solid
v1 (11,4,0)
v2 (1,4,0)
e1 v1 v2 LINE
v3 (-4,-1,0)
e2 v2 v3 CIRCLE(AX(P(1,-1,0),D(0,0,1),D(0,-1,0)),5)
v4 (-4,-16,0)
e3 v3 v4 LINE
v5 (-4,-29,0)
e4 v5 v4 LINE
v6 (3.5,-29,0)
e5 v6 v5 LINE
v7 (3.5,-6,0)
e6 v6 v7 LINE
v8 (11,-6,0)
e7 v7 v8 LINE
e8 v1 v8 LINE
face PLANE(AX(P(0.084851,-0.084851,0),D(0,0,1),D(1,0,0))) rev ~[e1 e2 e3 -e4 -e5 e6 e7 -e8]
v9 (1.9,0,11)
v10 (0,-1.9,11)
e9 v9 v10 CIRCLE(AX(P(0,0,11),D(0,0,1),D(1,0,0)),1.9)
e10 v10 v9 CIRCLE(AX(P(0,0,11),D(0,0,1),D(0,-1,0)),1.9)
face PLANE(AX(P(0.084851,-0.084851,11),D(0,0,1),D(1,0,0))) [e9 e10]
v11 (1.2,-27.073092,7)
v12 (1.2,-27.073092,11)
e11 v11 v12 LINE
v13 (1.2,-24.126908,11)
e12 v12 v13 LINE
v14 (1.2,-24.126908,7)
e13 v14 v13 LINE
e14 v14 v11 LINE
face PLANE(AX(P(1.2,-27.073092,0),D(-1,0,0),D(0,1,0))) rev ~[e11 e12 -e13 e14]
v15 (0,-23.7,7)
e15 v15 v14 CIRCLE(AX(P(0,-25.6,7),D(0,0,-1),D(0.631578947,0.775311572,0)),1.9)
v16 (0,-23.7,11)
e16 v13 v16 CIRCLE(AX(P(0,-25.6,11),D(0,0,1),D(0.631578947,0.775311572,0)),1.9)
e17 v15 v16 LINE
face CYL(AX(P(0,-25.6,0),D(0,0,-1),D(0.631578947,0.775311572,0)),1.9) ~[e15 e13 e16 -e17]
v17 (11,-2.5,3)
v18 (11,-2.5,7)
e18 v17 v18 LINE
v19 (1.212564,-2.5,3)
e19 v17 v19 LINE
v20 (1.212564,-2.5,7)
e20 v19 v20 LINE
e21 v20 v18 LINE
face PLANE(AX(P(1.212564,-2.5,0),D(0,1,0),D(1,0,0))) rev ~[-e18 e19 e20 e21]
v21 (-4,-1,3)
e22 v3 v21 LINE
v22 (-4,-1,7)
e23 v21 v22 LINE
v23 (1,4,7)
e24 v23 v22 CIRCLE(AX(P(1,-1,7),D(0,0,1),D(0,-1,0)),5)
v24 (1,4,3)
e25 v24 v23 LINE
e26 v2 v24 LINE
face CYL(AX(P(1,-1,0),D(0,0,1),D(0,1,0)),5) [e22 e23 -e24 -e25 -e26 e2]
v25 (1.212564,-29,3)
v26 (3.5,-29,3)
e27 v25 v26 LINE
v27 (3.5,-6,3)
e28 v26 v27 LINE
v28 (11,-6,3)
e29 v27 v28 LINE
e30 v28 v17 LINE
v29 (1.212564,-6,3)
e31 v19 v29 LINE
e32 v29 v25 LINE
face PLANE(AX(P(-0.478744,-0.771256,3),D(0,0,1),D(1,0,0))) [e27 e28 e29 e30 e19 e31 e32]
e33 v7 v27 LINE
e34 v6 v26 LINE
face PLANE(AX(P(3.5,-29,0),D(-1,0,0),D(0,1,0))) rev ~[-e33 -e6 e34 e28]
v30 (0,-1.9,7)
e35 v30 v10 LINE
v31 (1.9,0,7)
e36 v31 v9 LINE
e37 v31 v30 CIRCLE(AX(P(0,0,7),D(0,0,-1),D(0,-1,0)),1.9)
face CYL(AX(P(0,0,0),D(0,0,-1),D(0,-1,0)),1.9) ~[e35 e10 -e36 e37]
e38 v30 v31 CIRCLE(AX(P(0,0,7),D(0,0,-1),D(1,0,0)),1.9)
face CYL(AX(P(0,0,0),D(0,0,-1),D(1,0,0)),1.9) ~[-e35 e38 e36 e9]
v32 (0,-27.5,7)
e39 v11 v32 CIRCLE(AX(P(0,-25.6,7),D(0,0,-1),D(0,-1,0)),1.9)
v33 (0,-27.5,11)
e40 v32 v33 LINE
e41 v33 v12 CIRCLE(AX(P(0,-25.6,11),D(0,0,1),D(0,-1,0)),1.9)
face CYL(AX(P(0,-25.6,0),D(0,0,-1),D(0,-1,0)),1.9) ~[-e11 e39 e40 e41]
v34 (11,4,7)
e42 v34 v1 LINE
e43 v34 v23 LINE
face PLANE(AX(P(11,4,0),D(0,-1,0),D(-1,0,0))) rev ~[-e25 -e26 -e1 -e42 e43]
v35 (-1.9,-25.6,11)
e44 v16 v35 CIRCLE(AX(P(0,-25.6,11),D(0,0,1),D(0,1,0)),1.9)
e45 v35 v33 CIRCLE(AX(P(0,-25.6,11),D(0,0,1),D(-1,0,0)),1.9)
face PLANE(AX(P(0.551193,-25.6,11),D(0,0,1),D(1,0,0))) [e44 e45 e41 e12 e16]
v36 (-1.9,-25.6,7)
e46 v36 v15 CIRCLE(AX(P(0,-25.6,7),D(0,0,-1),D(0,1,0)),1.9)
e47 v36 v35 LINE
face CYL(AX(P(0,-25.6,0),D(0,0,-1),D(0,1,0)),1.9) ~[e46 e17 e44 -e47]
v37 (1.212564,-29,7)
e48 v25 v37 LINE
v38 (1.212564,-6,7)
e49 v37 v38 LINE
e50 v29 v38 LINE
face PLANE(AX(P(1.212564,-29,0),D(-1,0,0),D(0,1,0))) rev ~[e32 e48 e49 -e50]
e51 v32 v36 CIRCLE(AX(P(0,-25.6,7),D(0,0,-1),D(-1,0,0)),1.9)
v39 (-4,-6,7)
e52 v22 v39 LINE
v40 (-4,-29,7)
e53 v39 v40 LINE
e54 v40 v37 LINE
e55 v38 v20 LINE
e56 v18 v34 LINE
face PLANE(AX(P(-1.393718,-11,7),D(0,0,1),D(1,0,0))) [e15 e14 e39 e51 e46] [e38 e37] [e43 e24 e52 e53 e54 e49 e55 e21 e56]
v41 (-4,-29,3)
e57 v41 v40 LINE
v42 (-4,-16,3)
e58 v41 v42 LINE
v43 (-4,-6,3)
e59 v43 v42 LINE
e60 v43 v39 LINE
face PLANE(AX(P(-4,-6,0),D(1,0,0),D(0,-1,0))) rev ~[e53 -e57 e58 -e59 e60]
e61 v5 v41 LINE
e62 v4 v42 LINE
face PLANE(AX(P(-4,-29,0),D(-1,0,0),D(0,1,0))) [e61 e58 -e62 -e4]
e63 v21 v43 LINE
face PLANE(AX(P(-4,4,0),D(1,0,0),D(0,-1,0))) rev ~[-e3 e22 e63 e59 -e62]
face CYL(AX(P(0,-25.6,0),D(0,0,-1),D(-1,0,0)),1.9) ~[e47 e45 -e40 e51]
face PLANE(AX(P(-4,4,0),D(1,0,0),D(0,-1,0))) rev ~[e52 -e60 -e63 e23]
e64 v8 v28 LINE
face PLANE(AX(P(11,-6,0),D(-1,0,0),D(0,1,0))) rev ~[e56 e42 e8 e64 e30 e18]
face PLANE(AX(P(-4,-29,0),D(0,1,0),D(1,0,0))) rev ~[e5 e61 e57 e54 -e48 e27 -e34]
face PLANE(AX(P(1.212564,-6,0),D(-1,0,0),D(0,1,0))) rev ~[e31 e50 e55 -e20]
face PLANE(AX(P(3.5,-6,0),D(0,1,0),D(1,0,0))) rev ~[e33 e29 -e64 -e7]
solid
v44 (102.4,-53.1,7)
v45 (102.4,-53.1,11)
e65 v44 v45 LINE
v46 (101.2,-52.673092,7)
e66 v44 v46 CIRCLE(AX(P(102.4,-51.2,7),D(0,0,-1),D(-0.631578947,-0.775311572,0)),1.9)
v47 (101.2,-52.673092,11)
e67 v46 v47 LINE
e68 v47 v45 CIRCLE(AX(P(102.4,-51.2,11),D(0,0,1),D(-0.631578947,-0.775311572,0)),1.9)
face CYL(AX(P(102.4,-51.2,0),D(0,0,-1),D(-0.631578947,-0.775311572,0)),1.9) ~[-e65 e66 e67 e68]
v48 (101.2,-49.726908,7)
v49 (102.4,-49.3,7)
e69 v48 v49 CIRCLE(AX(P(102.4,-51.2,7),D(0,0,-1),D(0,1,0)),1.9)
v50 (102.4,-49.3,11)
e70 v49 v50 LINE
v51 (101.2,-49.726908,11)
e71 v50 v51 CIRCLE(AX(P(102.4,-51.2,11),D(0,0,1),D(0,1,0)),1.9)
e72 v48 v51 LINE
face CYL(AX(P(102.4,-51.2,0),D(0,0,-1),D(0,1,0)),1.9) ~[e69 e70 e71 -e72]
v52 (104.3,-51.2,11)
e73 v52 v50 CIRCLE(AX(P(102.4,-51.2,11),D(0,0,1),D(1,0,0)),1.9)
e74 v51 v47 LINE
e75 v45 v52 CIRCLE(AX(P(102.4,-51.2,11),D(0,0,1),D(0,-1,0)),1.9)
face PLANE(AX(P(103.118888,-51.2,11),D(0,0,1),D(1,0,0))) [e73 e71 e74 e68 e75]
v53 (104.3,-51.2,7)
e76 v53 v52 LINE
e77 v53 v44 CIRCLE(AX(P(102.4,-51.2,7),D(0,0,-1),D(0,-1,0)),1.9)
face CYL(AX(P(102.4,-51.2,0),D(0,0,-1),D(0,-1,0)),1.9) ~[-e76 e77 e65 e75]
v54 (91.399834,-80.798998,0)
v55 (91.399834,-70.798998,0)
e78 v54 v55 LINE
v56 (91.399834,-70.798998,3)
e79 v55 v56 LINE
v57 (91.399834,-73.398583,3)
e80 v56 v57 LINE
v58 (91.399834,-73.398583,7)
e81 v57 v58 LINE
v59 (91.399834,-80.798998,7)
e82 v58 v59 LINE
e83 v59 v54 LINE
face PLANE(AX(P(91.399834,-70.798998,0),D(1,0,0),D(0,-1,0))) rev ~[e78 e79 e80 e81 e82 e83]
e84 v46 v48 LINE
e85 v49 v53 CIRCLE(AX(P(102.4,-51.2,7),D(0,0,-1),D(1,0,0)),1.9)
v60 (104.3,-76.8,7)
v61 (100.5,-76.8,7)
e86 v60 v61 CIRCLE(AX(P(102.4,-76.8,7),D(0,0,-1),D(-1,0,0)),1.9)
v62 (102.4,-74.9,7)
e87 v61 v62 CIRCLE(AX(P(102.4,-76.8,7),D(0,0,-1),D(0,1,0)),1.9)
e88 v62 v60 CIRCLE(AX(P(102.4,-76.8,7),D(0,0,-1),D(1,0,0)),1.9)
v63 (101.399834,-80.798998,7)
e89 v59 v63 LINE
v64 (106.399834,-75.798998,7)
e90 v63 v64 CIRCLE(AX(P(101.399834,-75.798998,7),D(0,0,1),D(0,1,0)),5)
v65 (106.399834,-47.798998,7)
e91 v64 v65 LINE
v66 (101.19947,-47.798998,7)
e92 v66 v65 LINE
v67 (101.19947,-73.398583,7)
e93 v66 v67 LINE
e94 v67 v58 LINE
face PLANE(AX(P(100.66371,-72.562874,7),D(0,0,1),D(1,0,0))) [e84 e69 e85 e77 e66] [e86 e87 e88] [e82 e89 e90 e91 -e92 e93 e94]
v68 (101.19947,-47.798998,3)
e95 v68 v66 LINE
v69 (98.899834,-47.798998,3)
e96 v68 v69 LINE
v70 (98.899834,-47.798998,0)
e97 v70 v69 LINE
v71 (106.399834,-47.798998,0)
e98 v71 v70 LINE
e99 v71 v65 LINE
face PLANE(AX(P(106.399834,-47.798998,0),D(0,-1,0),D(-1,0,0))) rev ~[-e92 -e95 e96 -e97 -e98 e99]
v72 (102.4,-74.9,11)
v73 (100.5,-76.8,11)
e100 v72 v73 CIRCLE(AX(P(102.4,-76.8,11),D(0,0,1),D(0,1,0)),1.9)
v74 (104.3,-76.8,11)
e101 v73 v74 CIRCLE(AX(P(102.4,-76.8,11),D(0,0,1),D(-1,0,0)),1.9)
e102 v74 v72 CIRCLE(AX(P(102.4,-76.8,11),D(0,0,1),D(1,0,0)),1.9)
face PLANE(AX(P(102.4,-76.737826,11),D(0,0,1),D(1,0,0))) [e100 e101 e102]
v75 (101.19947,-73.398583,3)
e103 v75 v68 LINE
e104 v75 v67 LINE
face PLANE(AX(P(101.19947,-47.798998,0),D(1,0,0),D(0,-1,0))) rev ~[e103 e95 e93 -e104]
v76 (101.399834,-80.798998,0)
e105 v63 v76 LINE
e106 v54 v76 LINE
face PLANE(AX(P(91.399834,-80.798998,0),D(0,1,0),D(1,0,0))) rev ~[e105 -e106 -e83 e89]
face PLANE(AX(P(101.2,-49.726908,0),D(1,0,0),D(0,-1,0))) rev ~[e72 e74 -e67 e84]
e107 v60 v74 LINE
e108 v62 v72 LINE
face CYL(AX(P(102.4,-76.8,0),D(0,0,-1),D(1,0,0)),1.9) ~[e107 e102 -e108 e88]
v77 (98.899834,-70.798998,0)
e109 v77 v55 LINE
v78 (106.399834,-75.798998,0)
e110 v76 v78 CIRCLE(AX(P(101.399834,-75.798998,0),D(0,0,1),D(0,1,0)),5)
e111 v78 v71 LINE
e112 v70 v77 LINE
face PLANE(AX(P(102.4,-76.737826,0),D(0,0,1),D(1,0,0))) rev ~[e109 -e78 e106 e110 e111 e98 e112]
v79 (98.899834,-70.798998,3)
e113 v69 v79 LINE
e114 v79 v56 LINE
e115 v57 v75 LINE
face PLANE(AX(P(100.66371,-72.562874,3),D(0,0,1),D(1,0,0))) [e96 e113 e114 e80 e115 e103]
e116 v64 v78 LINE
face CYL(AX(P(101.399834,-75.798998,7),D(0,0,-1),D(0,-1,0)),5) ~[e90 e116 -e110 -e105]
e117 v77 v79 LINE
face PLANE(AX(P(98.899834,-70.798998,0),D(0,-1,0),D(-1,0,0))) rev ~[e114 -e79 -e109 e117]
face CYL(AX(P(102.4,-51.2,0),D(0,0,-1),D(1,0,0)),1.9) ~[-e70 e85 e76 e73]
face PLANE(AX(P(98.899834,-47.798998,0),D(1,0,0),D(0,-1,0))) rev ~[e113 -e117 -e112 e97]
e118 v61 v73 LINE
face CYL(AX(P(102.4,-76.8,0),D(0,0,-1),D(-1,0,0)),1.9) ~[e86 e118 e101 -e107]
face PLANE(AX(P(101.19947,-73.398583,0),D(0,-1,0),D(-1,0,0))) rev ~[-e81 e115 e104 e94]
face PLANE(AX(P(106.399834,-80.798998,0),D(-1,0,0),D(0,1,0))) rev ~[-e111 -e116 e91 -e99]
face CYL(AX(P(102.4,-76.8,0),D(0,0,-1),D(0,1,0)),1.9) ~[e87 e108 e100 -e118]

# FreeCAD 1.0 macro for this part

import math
import FreeCAD as App
import Part
import Sketcher
from FreeCAD import Vector
Q = App.Units.Quantity


def edges_at(feature, points):
    """Names of the edges that pass closest to the given points."""
    edges = feature.Shape.Edges
    near = lambda p: min(range(len(edges)), key=lambda i: edges[i].distToShape(Part.Vertex(*p))[0])
    return sorted({f"Edge{near(p) + 1}" for p in points})

doc = App.newDocument("Part")
body = doc.addObject("PartDesign::Body", "Body")

sketch1 = body.newObject("Sketcher::SketchObject", "Sketch")
sketch1.AttachmentSupport = (doc.getObject("XY_Plane"), [""])
sketch1.MapMode = "FlatFace"
sketch1.addGeometry([
    Part.LineSegment(Vector(-4, 4, 0), Vector(-4, -16, 0)),
    Part.LineSegment(Vector(-4, -16, 0), Vector(-4, -29, 0)),
    Part.LineSegment(Vector(-4, -29, 0), Vector(3.5, -29, 0)),
    Part.LineSegment(Vector(3.5, -29, 0), Vector(3.5, -6, 0)),
    Part.LineSegment(Vector(3.5, -6, 0), Vector(11, -6, 0)),
    Part.LineSegment(Vector(11, -6, 0), Vector(11, 4, 0)),
    Part.LineSegment(Vector(11, 4, 0), Vector(-4, 4, 0)),
], False)
sketch1.addConstraint([
    Sketcher.Constraint("Coincident", 0, 2, 1, 1),
    Sketcher.Constraint("Coincident", 1, 2, 2, 1),
    Sketcher.Constraint("Coincident", 2, 2, 3, 1),
    Sketcher.Constraint("Coincident", 3, 2, 4, 1),
    Sketcher.Constraint("Coincident", 4, 2, 5, 1),
    Sketcher.Constraint("Coincident", 5, 2, 6, 1),
    Sketcher.Constraint("Coincident", 6, 2, 0, 1),
    Sketcher.Constraint("Vertical", 0),
    Sketcher.Constraint("Vertical", 1),
    Sketcher.Constraint("Horizontal", 2),
    Sketcher.Constraint("Vertical", 3),
    Sketcher.Constraint("Horizontal", 4),
    Sketcher.Constraint("Vertical", 5),
    Sketcher.Constraint("Horizontal", 6),
    Sketcher.Constraint("Equal", 2, 4),
    Sketcher.Constraint("DistanceX", 6, 2, 6, 1, Q("15 mm")),
    Sketcher.Constraint("DistanceY", 0, 2, 0, 1, Q("20 mm")),
    Sketcher.Constraint("DistanceY", 1, 2, 1, 1, Q("13 mm")),
    Sketcher.Constraint("DistanceY", 3, 1, 3, 2, Q("23 mm")),
    Sketcher.Constraint("DistanceX", 0, 2, -1, 1, Q("4 mm")),
    Sketcher.Constraint("DistanceY", 0, 2, -1, 1, Q("16 mm")),
])
pad1 = body.newObject("PartDesign::Pad", "Pad")
pad1.Profile = sketch1
pad1.Length = 3

sketch2 = body.newObject("Sketcher::SketchObject", "Sketch001")
sketch2.AttachmentSupport = (doc.getObject("XY_Plane"), [""])
sketch2.MapMode = "FlatFace"
sketch2.addGeometry([
    Part.LineSegment(Vector(-4, -6, 0), Vector(-4, -29, 0)),
    Part.LineSegment(Vector(-4, -29, 0), Vector(1.212564, -29, 0)),
    Part.LineSegment(Vector(1.212564, -29, 0), Vector(1.212564, -6, 0)),
    Part.LineSegment(Vector(1.212564, -6, 0), Vector(1.212564, -2.5, 0)),
    Part.LineSegment(Vector(1.212564, -2.5, 0), Vector(11, -2.5, 0)),
    Part.LineSegment(Vector(11, -2.5, 0), Vector(11, 4, 0)),
    Part.LineSegment(Vector(11, 4, 0), Vector(-4, 4, 0)),
    Part.LineSegment(Vector(-4, 4, 0), Vector(-4, -6, 0)),
], False)
sketch2.addConstraint([
    Sketcher.Constraint("Coincident", 0, 2, 1, 1),
    Sketcher.Constraint("Coincident", 1, 2, 2, 1),
    Sketcher.Constraint("Coincident", 2, 2, 3, 1),
    Sketcher.Constraint("Coincident", 3, 2, 4, 1),
    Sketcher.Constraint("Coincident", 4, 2, 5, 1),
    Sketcher.Constraint("Coincident", 5, 2, 6, 1),
    Sketcher.Constraint("Coincident", 6, 2, 7, 1),
    Sketcher.Constraint("Coincident", 7, 2, 0, 1),
    Sketcher.Constraint("Vertical", 0),
    Sketcher.Constraint("Horizontal", 1),
    Sketcher.Constraint("Vertical", 2),
    Sketcher.Constraint("Vertical", 3),
    Sketcher.Constraint("Horizontal", 4),
    Sketcher.Constraint("Vertical", 5),
    Sketcher.Constraint("Horizontal", 6),
    Sketcher.Constraint("Vertical", 7),
    Sketcher.Constraint("Horizontal", 2, 2, 7, 2),
    Sketcher.Constraint("DistanceX", 6, 2, 6, 1, Q("15 mm")),
    Sketcher.Constraint("DistanceY", 0, 2, 0, 1, Q("23 mm")),
    Sketcher.Constraint("DistanceY", 7, 2, 7, 1, Q("10 mm")),
    Sketcher.Constraint("DistanceY", 3, 1, 3, 2, Q("3.5 mm")),
    Sketcher.Constraint("DistanceX", 0, 2, -1, 1, Q("4 mm")),
    Sketcher.Constraint("DistanceY", 0, 2, -1, 1, Q("29 mm")),
    Sketcher.Constraint("DistanceX", 1, 1, 1, 2, Q("5.212564 mm")),
])
pad2 = body.newObject("PartDesign::Pad", "Pad001")
pad2.Profile = sketch2
pad2.Length = 7

sketch3 = body.newObject("Sketcher::SketchObject", "Sketch002")
sketch3.AttachmentSupport = (doc.getObject("XY_Plane"), [""])
sketch3.MapMode = "FlatFace"
sketch3.addGeometry([
    Part.ArcOfCircle(Part.Circle(Vector(0, 0, 0), Vector(0, 0, 1), 1.9), math.radians(-90), math.radians(0)),
    Part.ArcOfCircle(Part.Circle(Vector(0, 0, 0), Vector(0, 0, 1), 1.9), math.radians(0), math.radians(270)),
    Part.ArcOfCircle(Part.Circle(Vector(0, -25.6, 0), Vector(0, 0, 1), 1.9), math.radians(50.833289), math.radians(90)),
    Part.ArcOfCircle(Part.Circle(Vector(0, -25.6, 0), Vector(0, 0, 1), 1.9), math.radians(90), math.radians(180)),
    Part.ArcOfCircle(Part.Circle(Vector(0, -25.6, 0), Vector(0, 0, 1), 1.9), math.radians(180), math.radians(270)),
    Part.ArcOfCircle(Part.Circle(Vector(0, -25.6, 0), Vector(0, 0, 1), 1.9), math.radians(-90), math.radians(-50.833289)),
    Part.LineSegment(Vector(1.2, -27.073092, 0), Vector(1.2, -24.126908, 0)),
], False)
sketch3.addConstraint([
    Sketcher.Constraint("Tangent", 0, 1, 1, 2),
    Sketcher.Constraint("Coincident", 1, 1, 0, 2),
    Sketcher.Constraint("Tangent", 2, 2, 3, 1),
    Sketcher.Constraint("Tangent", 3, 2, 4, 1),
    Sketcher.Constraint("Tangent", 4, 2, 5, 1),
    Sketcher.Constraint("Coincident", 5, 2, 6, 1),
    Sketcher.Constraint("Coincident", 6, 2, 2, 1),
    Sketcher.Constraint("Vertical", 6),
    Sketcher.Constraint("Coincident", 0, 3, -1, 1),
    Sketcher.Constraint("Coincident", 4, 3, 2, 3),
    Sketcher.Constraint("Equal", 1, 2),
    Sketcher.Constraint("Equal", 4, 5),
    Sketcher.Constraint("PointOnObject", 2, 3, -2),
    Sketcher.Constraint("PointOnObject", 0, 1, -2),
    Sketcher.Constraint("PointOnObject", 1, 1, -1),
    Sketcher.Constraint("PointOnObject", 2, 2, -2),
    Sketcher.Constraint("PointOnObject", 4, 2, -2),
    Sketcher.Constraint("Horizontal", 5, 3, 3, 2),
    Sketcher.Constraint("Radius", 0, Q("1.9 mm")),
    Sketcher.Constraint("DistanceY", 2, 3, -1, 1, Q("25.6 mm")),
    Sketcher.Constraint("DistanceX", -1, 1, 5, 2, Q("1.2 mm")),
])
pad3 = body.newObject("PartDesign::Pad", "Pad002")
pad3.Profile = sketch3
pad3.Length = 11
doc.recompute()

fillet = body.newObject("PartDesign::Fillet", "Fillet")
fillet.Base = (pad3, edges_at(pad3, [(-4, 4, 5)]))
fillet.Radius = 5
body2 = doc.addObject("PartDesign::Body", "Body001")

sketch4 = body2.newObject("Sketcher::SketchObject", "Sketch003")
sketch4.AttachmentSupport = (doc.getObject("XY_Plane001"), [""])
sketch4.MapMode = "FlatFace"
sketch4.addGeometry([
    Part.LineSegment(Vector(106.399833, -80.798998, 0), Vector(106.399833, -47.798998, 0)),
    Part.LineSegment(Vector(106.399833, -47.798998, 0), Vector(98.899833, -47.798998, 0)),
    Part.LineSegment(Vector(98.899833, -47.798998, 0), Vector(98.899833, -70.798998, 0)),
    Part.LineSegment(Vector(98.899833, -70.798998, 0), Vector(91.399833, -70.798998, 0)),
    Part.LineSegment(Vector(91.399833, -70.798998, 0), Vector(91.399833, -80.798998, 0)),
    Part.LineSegment(Vector(91.399833, -80.798998, 0), Vector(106.399833, -80.798998, 0)),
], False)
sketch4.addConstraint([
    Sketcher.Constraint("Coincident", 0, 2, 1, 1),
    Sketcher.Constraint("Coincident", 1, 2, 2, 1),
    Sketcher.Constraint("Coincident", 2, 2, 3, 1),
    Sketcher.Constraint("Coincident", 3, 2, 4, 1),
    Sketcher.Constraint("Coincident", 4, 2, 5, 1),
    Sketcher.Constraint("Coincident", 5, 2, 0, 1),
    Sketcher.Constraint("Vertical", 0),
    Sketcher.Constraint("Horizontal", 1),
    Sketcher.Constraint("Vertical", 2),
    Sketcher.Constraint("Horizontal", 3),
    Sketcher.Constraint("Vertical", 4),
    Sketcher.Constraint("Horizontal", 5),
    Sketcher.Constraint("Equal", 1, 3),
    Sketcher.Constraint("DistanceX", 5, 1, 5, 2, Q("15 mm")),
    Sketcher.Constraint("DistanceY", 0, 1, 0, 2, Q("33 mm")),
    Sketcher.Constraint("DistanceY", 2, 2, 2, 1, Q("23 mm")),
    Sketcher.Constraint("DistanceX", -1, 1, 0, 2, Q("106.399833 mm")),
    Sketcher.Constraint("DistanceY", 0, 2, -1, 1, Q("47.798998 mm")),
])
pad4 = body2.newObject("PartDesign::Pad", "Pad003")
pad4.Profile = sketch4
pad4.Length = 3

sketch5 = body2.newObject("Sketcher::SketchObject", "Sketch004")
sketch5.AttachmentSupport = (doc.getObject("XY_Plane001"), [""])
sketch5.MapMode = "FlatFace"
sketch5.addGeometry([
    Part.LineSegment(Vector(106.399833, -80.798998, 0), Vector(106.399833, -47.798998, 0)),
    Part.LineSegment(Vector(106.399833, -47.798998, 0), Vector(101.19947, -47.798998, 0)),
    Part.LineSegment(Vector(101.19947, -47.798998, 0), Vector(101.19947, -73.398583, 0)),
    Part.LineSegment(Vector(101.19947, -73.398583, 0), Vector(91.399833, -73.398583, 0)),
    Part.LineSegment(Vector(91.399833, -73.398583, 0), Vector(91.399833, -80.798998, 0)),
    Part.LineSegment(Vector(91.399833, -80.798998, 0), Vector(106.399833, -80.798998, 0)),
], False)
sketch5.addConstraint([
    Sketcher.Constraint("Coincident", 0, 2, 1, 1),
    Sketcher.Constraint("Coincident", 1, 2, 2, 1),
    Sketcher.Constraint("Coincident", 2, 2, 3, 1),
    Sketcher.Constraint("Coincident", 3, 2, 4, 1),
    Sketcher.Constraint("Coincident", 4, 2, 5, 1),
    Sketcher.Constraint("Coincident", 5, 2, 0, 1),
    Sketcher.Constraint("Vertical", 0),
    Sketcher.Constraint("Horizontal", 1),
    Sketcher.Constraint("Vertical", 2),
    Sketcher.Constraint("Horizontal", 3),
    Sketcher.Constraint("Vertical", 4),
    Sketcher.Constraint("Horizontal", 5),
    Sketcher.Constraint("DistanceX", 5, 1, 5, 2, Q("15 mm")),
    Sketcher.Constraint("DistanceY", 0, 1, 0, 2, Q("33 mm")),
    Sketcher.Constraint("DistanceX", 1, 2, 1, 1, Q("5.200363 mm")),
    Sketcher.Constraint("DistanceY", 2, 2, 2, 1, Q("25.599585 mm")),
    Sketcher.Constraint("DistanceX", -1, 1, 1, 2, Q("101.19947 mm")),
    Sketcher.Constraint("DistanceY", 0, 2, -1, 1, Q("47.798998 mm")),
])
pad5 = body2.newObject("PartDesign::Pad", "Pad004")
pad5.Profile = sketch5
pad5.Length = 7

sketch6 = body2.newObject("Sketcher::SketchObject", "Sketch005")
sketch6.AttachmentSupport = (doc.getObject("XY_Plane001"), [""])
sketch6.MapMode = "FlatFace"
sketch6.addGeometry([
    Part.ArcOfCircle(Part.Circle(Vector(102.4, -76.8, 0), Vector(0, 0, 1), 1.9), math.radians(0), math.radians(90)),
    Part.ArcOfCircle(Part.Circle(Vector(102.4, -76.8, 0), Vector(0, 0, 1), 1.9), math.radians(90), math.radians(180)),
    Part.ArcOfCircle(Part.Circle(Vector(102.4, -76.8, 0), Vector(0, 0, 1), 1.9), math.radians(180), math.radians(360)),
    Part.ArcOfCircle(Part.Circle(Vector(102.4, -51.2, 0), Vector(0, 0, 1), 1.9), math.radians(0), math.radians(90)),
    Part.ArcOfCircle(Part.Circle(Vector(102.4, -51.2, 0), Vector(0, 0, 1), 1.9), math.radians(90), math.radians(129.166711)),
    Part.LineSegment(Vector(101.2, -49.726908, 0), Vector(101.2, -52.673092, 0)),
    Part.ArcOfCircle(Part.Circle(Vector(102.4, -51.2, 0), Vector(0, 0, 1), 1.9), math.radians(-129.166711), math.radians(-90)),
    Part.ArcOfCircle(Part.Circle(Vector(102.4, -51.2, 0), Vector(0, 0, 1), 1.9), math.radians(-90), math.radians(0)),
], False)
sketch6.addConstraint([
    Sketcher.Constraint("Tangent", 0, 2, 1, 1),
    Sketcher.Constraint("Tangent", 1, 2, 2, 1),
    Sketcher.Constraint("Tangent", 2, 2, 0, 1),
    Sketcher.Constraint("Tangent", 3, 2, 4, 1),
    Sketcher.Constraint("Coincident", 4, 2, 5, 1),
    Sketcher.Constraint("Coincident", 5, 2, 6, 1),
    Sketcher.Constraint("Tangent", 6, 2, 7, 1),
    Sketcher.Constraint("Tangent", 7, 2, 3, 1),
    Sketcher.Constraint("Vertical", 5),
    Sketcher.Constraint("Coincident", 6, 3, 3, 3),
    Sketcher.Constraint("Equal", 2, 3),
    Sketcher.Constraint("Equal", 3, 4),
    Sketcher.Constraint("Horizontal", 2, 3, 1, 2),
    Sketcher.Constraint("Horizontal", 1, 2, 2, 2),
    Sketcher.Constraint("Horizontal", 6, 3, 7, 2),
    Sketcher.Constraint("Vertical", 2, 3, 3, 3),
    Sketcher.Constraint("Vertical", 7, 3, 0, 2),
    Sketcher.Constraint("Vertical", 0, 2, 3, 2),
    Sketcher.Constraint("Vertical", 3, 2, 6, 2),
    Sketcher.Constraint("Radius", 0, Q("1.9 mm")),
    Sketcher.Constraint("DistanceX", -1, 1, 0, 3, Q("102.4 mm")),
    Sketcher.Constraint("DistanceY", 0, 3, -1, 1, Q("76.8 mm")),
    Sketcher.Constraint("DistanceY", 3, 3, -1, 1, Q("51.2 mm")),
    Sketcher.Constraint("DistanceX", -1, 1, 4, 2, Q("101.2 mm")),
])
pad6 = body2.newObject("PartDesign::Pad", "Pad005")
pad6.Profile = sketch6
pad6.Length = 11
doc.recompute()

fillet2 = body2.newObject("PartDesign::Fillet", "Fillet001")
fillet2.Base = (pad6, edges_at(pad6, [(106.4, -80.799, 3.5)]))
fillet2.Radius = 5

doc.recompute()
